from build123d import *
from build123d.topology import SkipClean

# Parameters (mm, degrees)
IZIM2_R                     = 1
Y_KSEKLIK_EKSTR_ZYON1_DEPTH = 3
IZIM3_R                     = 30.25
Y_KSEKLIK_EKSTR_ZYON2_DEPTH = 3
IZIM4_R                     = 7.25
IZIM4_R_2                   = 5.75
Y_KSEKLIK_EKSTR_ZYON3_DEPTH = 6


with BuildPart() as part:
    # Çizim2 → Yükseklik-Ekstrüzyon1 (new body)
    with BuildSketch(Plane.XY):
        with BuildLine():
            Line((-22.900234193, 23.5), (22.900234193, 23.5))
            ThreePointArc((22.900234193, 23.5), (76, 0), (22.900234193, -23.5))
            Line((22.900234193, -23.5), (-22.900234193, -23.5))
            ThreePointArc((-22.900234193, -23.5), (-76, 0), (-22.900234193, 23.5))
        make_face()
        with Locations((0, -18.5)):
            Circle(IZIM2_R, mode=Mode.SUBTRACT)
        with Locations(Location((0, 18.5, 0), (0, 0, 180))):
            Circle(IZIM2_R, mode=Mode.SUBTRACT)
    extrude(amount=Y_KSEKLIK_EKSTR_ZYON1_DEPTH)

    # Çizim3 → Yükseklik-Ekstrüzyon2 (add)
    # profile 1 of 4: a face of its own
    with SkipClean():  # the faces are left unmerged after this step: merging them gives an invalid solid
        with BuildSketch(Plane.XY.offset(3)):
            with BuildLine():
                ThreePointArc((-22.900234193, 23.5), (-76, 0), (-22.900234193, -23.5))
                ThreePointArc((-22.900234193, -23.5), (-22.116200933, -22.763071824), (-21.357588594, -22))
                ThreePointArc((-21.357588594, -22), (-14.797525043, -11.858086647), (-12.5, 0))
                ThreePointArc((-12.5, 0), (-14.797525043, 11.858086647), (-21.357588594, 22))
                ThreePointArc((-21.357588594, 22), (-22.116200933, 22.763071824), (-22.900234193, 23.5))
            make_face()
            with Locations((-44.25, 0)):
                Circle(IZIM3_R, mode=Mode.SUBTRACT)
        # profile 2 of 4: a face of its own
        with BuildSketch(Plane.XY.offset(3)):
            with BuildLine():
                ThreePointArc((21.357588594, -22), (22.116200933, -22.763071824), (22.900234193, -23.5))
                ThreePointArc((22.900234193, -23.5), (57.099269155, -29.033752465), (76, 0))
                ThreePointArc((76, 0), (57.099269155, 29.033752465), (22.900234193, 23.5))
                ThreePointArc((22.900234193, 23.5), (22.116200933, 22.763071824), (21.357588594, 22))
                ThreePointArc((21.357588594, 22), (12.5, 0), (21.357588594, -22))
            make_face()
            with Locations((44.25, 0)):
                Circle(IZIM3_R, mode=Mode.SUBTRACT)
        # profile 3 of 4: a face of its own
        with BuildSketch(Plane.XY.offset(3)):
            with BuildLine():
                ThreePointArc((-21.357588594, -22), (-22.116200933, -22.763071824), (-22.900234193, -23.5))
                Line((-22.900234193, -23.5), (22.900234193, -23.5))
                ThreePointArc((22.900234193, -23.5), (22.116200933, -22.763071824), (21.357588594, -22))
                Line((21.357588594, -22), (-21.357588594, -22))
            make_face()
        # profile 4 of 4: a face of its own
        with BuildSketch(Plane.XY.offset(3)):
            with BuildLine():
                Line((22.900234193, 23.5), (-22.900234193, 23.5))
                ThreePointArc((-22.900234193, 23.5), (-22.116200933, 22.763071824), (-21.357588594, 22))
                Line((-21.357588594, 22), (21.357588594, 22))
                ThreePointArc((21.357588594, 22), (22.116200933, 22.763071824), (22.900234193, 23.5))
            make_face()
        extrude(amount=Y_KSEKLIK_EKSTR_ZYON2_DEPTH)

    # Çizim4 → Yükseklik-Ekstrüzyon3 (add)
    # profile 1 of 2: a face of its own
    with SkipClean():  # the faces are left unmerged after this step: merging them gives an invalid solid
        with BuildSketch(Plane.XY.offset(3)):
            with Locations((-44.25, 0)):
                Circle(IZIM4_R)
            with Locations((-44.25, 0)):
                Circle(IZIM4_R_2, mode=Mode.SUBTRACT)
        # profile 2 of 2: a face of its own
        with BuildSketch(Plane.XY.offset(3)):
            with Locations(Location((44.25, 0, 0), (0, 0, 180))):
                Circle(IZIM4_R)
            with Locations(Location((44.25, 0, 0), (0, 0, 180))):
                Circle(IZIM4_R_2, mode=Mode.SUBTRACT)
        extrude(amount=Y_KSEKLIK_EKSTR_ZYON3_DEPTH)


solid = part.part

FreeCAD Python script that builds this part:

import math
import FreeCAD as App
import Part
import Sketcher

doc = App.newDocument("Part")
body = doc.addObject("PartDesign::Body", "Body")

# Sketch on XY plane
sketch1 = body.newObject("Sketcher::SketchObject", "Sketch")
sketch1.AttachmentSupport = (doc.getObject("XY_Plane"), [""])
sketch1.MapMode = "FlatFace"
sketch1.addGeometry([
    Part.LineSegment(App.Vector(22.9, 23.5, 0), App.Vector(-22.9, 23.5, 0)),  # 0
    Part.ArcOfCircle(Part.Circle(App.Vector(-44.2, 0, 0), App.Vector(0, 0, 1), 31.8), math.radians(48), math.radians(312)),  # 1
    Part.LineSegment(App.Vector(-22.9, -23.5, 0), App.Vector(22.9, -23.5, 0)),  # 2
    Part.ArcOfCircle(Part.Circle(App.Vector(44.2, 0, 0), App.Vector(0, 0, 1), 31.8), math.radians(-132), math.radians(132)),  # 3
    Part.Circle(App.Vector(0, -18.5, 0), App.Vector(0, 0, 1), 1),  # 4
    Part.Circle(App.Vector(0, 18.5, 0), App.Vector(0, 0, 1), 1),  # 5
], False)
sketch1.addConstraint([
    Sketcher.Constraint("Coincident", 0, 2, 1, 1),
    Sketcher.Constraint("Coincident", 1, 2, 2, 1),
    Sketcher.Constraint("Coincident", 2, 2, 3, 1),
    Sketcher.Constraint("Coincident", 3, 2, 0, 1),
    Sketcher.Constraint("Horizontal", 0),
    Sketcher.Constraint("Horizontal", 2),
    Sketcher.Constraint("Equal", 1, 3),
    Sketcher.Constraint("Equal", 4, 5),
    Sketcher.Constraint("Symmetric", 1, 3, 3, 3, -1, 1),
    Sketcher.Constraint("Symmetric", 4, 3, 5, 3, -1, 1),
    Sketcher.Constraint("Symmetric", 0, 2, 1, 2, -1),
    Sketcher.Constraint("PointOnObject", 4, 3, -2),
    Sketcher.Constraint("Diameter", 4, 2.0),
    Sketcher.Constraint("Radius", 1, 31.75),
    Sketcher.Constraint("DistanceY", 4, 3, 5, 3, 37.0),
    Sketcher.Constraint("DistanceY", 5, 3, 0, 2, 5.0),
    Sketcher.Constraint("DistanceX", 1, 3, 3, 3, 88.5),
])
pad1 = body.newObject("PartDesign::Pad", "Pad")
pad1.Profile = sketch1
pad1.Length = 3

# Sketch on XY plane
sketch2 = body.newObject("Sketcher::SketchObject", "Sketch001")
sketch2.AttachmentSupport = (doc.getObject("XY_Plane"), [""])
sketch2.MapMode = "FlatFace"
sketch2.AttachmentOffset = App.Placement(App.Vector(0, 0, 3), App.Rotation())
sketch2.addGeometry([
    Part.ArcOfCircle(Part.Circle(App.Vector(-44, 0, 0), App.Vector(0, 0, 1), 32), math.radians(48), math.radians(312)),  # 0
    Part.LineSegment(App.Vector(-23, -24, 0), App.Vector(23, -24, 0)),  # 1
    Part.ArcOfCircle(Part.Circle(App.Vector(44, 0, 0), App.Vector(0, 0, 1), 32), math.radians(-132), math.radians(0)),  # 2
    Part.ArcOfCircle(Part.Circle(App.Vector(44, 0, 0), App.Vector(0, 0, 1), 32), math.radians(0), math.radians(132)),  # 3
    Part.LineSegment(App.Vector(23, 24, 0), App.Vector(-23, 24, 0)),  # 4
    Part.ArcOfCircle(Part.Circle(App.Vector(-44, 0, 0), App.Vector(0, 0, 1), 32), math.radians(0), math.radians(44)),  # 5
    Part.LineSegment(App.Vector(-21, 22, 0), App.Vector(21, 22, 0)),  # 6
    Part.ArcOfCircle(Part.Circle(App.Vector(44, 0, 0), App.Vector(0, 0, 1), 32), math.radians(136), math.radians(224)),  # 7
    Part.LineSegment(App.Vector(21, -22, 0), App.Vector(-21, -22, 0)),  # 8
    Part.ArcOfCircle(Part.Circle(App.Vector(-44, 0, 0), App.Vector(0, 0, 1), 32), math.radians(-44), math.radians(0)),  # 9
    Part.Circle(App.Vector(-44, 0, 0), App.Vector(0, 0, 1), 30),  # 10
    Part.Circle(App.Vector(44, 0, 0), App.Vector(0, 0, 1), 30),  # 11
], False)
sketch2.addConstraint([
    Sketcher.Constraint("Coincident", 0, 2, 1, 1),
    Sketcher.Constraint("Coincident", 1, 2, 2, 1),
    Sketcher.Constraint("Tangent", 2, 2, 3, 1),
    Sketcher.Constraint("Coincident", 3, 2, 4, 1),
    Sketcher.Constraint("Coincident", 4, 2, 0, 1),
    Sketcher.Constraint("Coincident", 5, 2, 6, 1),
    Sketcher.Constraint("Coincident", 6, 2, 7, 1),
    Sketcher.Constraint("Coincident", 7, 2, 8, 1),
    Sketcher.Constraint("Coincident", 8, 2, 9, 1),
    Sketcher.Constraint("Tangent", 9, 2, 5, 1),
    Sketcher.Constraint("Horizontal", 1),
    Sketcher.Constraint("Horizontal", 4),
    Sketcher.Constraint("Horizontal", 6),
    Sketcher.Constraint("Horizontal", 8),
    Sketcher.Constraint("Coincident", 5, 3, 0, 3),
    Sketcher.Constraint("Coincident", 7, 3, 2, 3),
    Sketcher.Constraint("Coincident", 10, 3, 0, 3),
    Sketcher.Constraint("Coincident", 11, 3, 2, 3),
    Sketcher.Constraint("Equal", 0, 2),
    Sketcher.Constraint("Equal", 2, 3),
    Sketcher.Constraint("Equal", 3, 5),
    Sketcher.Constraint("Equal", 5, 7),
    Sketcher.Constraint("Equal", 7, 9),
    Sketcher.Constraint("Equal", 10, 11),
    Sketcher.Constraint("Symmetric", 0, 3, 2, 3, -1, 1),
    Sketcher.Constraint("Symmetric", 1, 2, 3, 2, -1),
    Sketcher.Constraint("PointOnObject", 2, 2, -1),
    Sketcher.Constraint("PointOnObject", 9, 2, -1),
    Sketcher.Constraint("Vertical", 6, 2, 7, 2),
    Sketcher.Constraint("Diameter", 10, 60.5),
    Sketcher.Constraint("Radius", 0, 31.75),
    Sketcher.Constraint("DistanceX", -1, 1, 2, 2, 76.0),
    Sketcher.Constraint("DistanceY", -1, 1, 5, 2, 22.0),
    Sketcher.Constraint("DistanceY", 1, 2, 3, 2, 47.0),
])
pad2 = body.newObject("PartDesign::Pad", "Pad001")
pad2.Profile = sketch2
pad2.Length = 3

# Sketch on XY plane
sketch3 = body.newObject("Sketcher::SketchObject", "Sketch002")
sketch3.AttachmentSupport = (doc.getObject("XY_Plane"), [""])
sketch3.MapMode = "FlatFace"
sketch3.AttachmentOffset = App.Placement(App.Vector(0, 0, 3), App.Rotation())
sketch3.addGeometry([
    Part.Circle(App.Vector(-44, 0, 0), App.Vector(0, 0, 1), 7),
    Part.Circle(App.Vector(-44, 0, 0), App.Vector(0, 0, 1), 6),
    Part.Circle(App.Vector(44, 0, 0), App.Vector(0, 0, 1), 7),
    Part.Circle(App.Vector(44, 0, 0), App.Vector(0, 0, 1), 6),
], False)
sketch3.addConstraint([
    Sketcher.Constraint("Coincident", 1, 3, 0, 3),
    Sketcher.Constraint("Coincident", 3, 3, 2, 3),
    Sketcher.Constraint("Equal", 0, 2),
    Sketcher.Constraint("Equal", 1, 3),
    Sketcher.Constraint("Symmetric", 0, 3, 2, 3, -1, 1),
    Sketcher.Constraint("PointOnObject", 0, 3, -1),
    Sketcher.Constraint("Diameter", 0, 14.5),
    Sketcher.Constraint("Diameter", 1, 11.5),
    Sketcher.Constraint("DistanceX", 0, 3, 2, 3, 88.5),
])
pad3 = body.newObject("PartDesign::Pad", "Pad002")
pad3.Profile = sketch3
pad3.Length = 6

doc.recompute()
